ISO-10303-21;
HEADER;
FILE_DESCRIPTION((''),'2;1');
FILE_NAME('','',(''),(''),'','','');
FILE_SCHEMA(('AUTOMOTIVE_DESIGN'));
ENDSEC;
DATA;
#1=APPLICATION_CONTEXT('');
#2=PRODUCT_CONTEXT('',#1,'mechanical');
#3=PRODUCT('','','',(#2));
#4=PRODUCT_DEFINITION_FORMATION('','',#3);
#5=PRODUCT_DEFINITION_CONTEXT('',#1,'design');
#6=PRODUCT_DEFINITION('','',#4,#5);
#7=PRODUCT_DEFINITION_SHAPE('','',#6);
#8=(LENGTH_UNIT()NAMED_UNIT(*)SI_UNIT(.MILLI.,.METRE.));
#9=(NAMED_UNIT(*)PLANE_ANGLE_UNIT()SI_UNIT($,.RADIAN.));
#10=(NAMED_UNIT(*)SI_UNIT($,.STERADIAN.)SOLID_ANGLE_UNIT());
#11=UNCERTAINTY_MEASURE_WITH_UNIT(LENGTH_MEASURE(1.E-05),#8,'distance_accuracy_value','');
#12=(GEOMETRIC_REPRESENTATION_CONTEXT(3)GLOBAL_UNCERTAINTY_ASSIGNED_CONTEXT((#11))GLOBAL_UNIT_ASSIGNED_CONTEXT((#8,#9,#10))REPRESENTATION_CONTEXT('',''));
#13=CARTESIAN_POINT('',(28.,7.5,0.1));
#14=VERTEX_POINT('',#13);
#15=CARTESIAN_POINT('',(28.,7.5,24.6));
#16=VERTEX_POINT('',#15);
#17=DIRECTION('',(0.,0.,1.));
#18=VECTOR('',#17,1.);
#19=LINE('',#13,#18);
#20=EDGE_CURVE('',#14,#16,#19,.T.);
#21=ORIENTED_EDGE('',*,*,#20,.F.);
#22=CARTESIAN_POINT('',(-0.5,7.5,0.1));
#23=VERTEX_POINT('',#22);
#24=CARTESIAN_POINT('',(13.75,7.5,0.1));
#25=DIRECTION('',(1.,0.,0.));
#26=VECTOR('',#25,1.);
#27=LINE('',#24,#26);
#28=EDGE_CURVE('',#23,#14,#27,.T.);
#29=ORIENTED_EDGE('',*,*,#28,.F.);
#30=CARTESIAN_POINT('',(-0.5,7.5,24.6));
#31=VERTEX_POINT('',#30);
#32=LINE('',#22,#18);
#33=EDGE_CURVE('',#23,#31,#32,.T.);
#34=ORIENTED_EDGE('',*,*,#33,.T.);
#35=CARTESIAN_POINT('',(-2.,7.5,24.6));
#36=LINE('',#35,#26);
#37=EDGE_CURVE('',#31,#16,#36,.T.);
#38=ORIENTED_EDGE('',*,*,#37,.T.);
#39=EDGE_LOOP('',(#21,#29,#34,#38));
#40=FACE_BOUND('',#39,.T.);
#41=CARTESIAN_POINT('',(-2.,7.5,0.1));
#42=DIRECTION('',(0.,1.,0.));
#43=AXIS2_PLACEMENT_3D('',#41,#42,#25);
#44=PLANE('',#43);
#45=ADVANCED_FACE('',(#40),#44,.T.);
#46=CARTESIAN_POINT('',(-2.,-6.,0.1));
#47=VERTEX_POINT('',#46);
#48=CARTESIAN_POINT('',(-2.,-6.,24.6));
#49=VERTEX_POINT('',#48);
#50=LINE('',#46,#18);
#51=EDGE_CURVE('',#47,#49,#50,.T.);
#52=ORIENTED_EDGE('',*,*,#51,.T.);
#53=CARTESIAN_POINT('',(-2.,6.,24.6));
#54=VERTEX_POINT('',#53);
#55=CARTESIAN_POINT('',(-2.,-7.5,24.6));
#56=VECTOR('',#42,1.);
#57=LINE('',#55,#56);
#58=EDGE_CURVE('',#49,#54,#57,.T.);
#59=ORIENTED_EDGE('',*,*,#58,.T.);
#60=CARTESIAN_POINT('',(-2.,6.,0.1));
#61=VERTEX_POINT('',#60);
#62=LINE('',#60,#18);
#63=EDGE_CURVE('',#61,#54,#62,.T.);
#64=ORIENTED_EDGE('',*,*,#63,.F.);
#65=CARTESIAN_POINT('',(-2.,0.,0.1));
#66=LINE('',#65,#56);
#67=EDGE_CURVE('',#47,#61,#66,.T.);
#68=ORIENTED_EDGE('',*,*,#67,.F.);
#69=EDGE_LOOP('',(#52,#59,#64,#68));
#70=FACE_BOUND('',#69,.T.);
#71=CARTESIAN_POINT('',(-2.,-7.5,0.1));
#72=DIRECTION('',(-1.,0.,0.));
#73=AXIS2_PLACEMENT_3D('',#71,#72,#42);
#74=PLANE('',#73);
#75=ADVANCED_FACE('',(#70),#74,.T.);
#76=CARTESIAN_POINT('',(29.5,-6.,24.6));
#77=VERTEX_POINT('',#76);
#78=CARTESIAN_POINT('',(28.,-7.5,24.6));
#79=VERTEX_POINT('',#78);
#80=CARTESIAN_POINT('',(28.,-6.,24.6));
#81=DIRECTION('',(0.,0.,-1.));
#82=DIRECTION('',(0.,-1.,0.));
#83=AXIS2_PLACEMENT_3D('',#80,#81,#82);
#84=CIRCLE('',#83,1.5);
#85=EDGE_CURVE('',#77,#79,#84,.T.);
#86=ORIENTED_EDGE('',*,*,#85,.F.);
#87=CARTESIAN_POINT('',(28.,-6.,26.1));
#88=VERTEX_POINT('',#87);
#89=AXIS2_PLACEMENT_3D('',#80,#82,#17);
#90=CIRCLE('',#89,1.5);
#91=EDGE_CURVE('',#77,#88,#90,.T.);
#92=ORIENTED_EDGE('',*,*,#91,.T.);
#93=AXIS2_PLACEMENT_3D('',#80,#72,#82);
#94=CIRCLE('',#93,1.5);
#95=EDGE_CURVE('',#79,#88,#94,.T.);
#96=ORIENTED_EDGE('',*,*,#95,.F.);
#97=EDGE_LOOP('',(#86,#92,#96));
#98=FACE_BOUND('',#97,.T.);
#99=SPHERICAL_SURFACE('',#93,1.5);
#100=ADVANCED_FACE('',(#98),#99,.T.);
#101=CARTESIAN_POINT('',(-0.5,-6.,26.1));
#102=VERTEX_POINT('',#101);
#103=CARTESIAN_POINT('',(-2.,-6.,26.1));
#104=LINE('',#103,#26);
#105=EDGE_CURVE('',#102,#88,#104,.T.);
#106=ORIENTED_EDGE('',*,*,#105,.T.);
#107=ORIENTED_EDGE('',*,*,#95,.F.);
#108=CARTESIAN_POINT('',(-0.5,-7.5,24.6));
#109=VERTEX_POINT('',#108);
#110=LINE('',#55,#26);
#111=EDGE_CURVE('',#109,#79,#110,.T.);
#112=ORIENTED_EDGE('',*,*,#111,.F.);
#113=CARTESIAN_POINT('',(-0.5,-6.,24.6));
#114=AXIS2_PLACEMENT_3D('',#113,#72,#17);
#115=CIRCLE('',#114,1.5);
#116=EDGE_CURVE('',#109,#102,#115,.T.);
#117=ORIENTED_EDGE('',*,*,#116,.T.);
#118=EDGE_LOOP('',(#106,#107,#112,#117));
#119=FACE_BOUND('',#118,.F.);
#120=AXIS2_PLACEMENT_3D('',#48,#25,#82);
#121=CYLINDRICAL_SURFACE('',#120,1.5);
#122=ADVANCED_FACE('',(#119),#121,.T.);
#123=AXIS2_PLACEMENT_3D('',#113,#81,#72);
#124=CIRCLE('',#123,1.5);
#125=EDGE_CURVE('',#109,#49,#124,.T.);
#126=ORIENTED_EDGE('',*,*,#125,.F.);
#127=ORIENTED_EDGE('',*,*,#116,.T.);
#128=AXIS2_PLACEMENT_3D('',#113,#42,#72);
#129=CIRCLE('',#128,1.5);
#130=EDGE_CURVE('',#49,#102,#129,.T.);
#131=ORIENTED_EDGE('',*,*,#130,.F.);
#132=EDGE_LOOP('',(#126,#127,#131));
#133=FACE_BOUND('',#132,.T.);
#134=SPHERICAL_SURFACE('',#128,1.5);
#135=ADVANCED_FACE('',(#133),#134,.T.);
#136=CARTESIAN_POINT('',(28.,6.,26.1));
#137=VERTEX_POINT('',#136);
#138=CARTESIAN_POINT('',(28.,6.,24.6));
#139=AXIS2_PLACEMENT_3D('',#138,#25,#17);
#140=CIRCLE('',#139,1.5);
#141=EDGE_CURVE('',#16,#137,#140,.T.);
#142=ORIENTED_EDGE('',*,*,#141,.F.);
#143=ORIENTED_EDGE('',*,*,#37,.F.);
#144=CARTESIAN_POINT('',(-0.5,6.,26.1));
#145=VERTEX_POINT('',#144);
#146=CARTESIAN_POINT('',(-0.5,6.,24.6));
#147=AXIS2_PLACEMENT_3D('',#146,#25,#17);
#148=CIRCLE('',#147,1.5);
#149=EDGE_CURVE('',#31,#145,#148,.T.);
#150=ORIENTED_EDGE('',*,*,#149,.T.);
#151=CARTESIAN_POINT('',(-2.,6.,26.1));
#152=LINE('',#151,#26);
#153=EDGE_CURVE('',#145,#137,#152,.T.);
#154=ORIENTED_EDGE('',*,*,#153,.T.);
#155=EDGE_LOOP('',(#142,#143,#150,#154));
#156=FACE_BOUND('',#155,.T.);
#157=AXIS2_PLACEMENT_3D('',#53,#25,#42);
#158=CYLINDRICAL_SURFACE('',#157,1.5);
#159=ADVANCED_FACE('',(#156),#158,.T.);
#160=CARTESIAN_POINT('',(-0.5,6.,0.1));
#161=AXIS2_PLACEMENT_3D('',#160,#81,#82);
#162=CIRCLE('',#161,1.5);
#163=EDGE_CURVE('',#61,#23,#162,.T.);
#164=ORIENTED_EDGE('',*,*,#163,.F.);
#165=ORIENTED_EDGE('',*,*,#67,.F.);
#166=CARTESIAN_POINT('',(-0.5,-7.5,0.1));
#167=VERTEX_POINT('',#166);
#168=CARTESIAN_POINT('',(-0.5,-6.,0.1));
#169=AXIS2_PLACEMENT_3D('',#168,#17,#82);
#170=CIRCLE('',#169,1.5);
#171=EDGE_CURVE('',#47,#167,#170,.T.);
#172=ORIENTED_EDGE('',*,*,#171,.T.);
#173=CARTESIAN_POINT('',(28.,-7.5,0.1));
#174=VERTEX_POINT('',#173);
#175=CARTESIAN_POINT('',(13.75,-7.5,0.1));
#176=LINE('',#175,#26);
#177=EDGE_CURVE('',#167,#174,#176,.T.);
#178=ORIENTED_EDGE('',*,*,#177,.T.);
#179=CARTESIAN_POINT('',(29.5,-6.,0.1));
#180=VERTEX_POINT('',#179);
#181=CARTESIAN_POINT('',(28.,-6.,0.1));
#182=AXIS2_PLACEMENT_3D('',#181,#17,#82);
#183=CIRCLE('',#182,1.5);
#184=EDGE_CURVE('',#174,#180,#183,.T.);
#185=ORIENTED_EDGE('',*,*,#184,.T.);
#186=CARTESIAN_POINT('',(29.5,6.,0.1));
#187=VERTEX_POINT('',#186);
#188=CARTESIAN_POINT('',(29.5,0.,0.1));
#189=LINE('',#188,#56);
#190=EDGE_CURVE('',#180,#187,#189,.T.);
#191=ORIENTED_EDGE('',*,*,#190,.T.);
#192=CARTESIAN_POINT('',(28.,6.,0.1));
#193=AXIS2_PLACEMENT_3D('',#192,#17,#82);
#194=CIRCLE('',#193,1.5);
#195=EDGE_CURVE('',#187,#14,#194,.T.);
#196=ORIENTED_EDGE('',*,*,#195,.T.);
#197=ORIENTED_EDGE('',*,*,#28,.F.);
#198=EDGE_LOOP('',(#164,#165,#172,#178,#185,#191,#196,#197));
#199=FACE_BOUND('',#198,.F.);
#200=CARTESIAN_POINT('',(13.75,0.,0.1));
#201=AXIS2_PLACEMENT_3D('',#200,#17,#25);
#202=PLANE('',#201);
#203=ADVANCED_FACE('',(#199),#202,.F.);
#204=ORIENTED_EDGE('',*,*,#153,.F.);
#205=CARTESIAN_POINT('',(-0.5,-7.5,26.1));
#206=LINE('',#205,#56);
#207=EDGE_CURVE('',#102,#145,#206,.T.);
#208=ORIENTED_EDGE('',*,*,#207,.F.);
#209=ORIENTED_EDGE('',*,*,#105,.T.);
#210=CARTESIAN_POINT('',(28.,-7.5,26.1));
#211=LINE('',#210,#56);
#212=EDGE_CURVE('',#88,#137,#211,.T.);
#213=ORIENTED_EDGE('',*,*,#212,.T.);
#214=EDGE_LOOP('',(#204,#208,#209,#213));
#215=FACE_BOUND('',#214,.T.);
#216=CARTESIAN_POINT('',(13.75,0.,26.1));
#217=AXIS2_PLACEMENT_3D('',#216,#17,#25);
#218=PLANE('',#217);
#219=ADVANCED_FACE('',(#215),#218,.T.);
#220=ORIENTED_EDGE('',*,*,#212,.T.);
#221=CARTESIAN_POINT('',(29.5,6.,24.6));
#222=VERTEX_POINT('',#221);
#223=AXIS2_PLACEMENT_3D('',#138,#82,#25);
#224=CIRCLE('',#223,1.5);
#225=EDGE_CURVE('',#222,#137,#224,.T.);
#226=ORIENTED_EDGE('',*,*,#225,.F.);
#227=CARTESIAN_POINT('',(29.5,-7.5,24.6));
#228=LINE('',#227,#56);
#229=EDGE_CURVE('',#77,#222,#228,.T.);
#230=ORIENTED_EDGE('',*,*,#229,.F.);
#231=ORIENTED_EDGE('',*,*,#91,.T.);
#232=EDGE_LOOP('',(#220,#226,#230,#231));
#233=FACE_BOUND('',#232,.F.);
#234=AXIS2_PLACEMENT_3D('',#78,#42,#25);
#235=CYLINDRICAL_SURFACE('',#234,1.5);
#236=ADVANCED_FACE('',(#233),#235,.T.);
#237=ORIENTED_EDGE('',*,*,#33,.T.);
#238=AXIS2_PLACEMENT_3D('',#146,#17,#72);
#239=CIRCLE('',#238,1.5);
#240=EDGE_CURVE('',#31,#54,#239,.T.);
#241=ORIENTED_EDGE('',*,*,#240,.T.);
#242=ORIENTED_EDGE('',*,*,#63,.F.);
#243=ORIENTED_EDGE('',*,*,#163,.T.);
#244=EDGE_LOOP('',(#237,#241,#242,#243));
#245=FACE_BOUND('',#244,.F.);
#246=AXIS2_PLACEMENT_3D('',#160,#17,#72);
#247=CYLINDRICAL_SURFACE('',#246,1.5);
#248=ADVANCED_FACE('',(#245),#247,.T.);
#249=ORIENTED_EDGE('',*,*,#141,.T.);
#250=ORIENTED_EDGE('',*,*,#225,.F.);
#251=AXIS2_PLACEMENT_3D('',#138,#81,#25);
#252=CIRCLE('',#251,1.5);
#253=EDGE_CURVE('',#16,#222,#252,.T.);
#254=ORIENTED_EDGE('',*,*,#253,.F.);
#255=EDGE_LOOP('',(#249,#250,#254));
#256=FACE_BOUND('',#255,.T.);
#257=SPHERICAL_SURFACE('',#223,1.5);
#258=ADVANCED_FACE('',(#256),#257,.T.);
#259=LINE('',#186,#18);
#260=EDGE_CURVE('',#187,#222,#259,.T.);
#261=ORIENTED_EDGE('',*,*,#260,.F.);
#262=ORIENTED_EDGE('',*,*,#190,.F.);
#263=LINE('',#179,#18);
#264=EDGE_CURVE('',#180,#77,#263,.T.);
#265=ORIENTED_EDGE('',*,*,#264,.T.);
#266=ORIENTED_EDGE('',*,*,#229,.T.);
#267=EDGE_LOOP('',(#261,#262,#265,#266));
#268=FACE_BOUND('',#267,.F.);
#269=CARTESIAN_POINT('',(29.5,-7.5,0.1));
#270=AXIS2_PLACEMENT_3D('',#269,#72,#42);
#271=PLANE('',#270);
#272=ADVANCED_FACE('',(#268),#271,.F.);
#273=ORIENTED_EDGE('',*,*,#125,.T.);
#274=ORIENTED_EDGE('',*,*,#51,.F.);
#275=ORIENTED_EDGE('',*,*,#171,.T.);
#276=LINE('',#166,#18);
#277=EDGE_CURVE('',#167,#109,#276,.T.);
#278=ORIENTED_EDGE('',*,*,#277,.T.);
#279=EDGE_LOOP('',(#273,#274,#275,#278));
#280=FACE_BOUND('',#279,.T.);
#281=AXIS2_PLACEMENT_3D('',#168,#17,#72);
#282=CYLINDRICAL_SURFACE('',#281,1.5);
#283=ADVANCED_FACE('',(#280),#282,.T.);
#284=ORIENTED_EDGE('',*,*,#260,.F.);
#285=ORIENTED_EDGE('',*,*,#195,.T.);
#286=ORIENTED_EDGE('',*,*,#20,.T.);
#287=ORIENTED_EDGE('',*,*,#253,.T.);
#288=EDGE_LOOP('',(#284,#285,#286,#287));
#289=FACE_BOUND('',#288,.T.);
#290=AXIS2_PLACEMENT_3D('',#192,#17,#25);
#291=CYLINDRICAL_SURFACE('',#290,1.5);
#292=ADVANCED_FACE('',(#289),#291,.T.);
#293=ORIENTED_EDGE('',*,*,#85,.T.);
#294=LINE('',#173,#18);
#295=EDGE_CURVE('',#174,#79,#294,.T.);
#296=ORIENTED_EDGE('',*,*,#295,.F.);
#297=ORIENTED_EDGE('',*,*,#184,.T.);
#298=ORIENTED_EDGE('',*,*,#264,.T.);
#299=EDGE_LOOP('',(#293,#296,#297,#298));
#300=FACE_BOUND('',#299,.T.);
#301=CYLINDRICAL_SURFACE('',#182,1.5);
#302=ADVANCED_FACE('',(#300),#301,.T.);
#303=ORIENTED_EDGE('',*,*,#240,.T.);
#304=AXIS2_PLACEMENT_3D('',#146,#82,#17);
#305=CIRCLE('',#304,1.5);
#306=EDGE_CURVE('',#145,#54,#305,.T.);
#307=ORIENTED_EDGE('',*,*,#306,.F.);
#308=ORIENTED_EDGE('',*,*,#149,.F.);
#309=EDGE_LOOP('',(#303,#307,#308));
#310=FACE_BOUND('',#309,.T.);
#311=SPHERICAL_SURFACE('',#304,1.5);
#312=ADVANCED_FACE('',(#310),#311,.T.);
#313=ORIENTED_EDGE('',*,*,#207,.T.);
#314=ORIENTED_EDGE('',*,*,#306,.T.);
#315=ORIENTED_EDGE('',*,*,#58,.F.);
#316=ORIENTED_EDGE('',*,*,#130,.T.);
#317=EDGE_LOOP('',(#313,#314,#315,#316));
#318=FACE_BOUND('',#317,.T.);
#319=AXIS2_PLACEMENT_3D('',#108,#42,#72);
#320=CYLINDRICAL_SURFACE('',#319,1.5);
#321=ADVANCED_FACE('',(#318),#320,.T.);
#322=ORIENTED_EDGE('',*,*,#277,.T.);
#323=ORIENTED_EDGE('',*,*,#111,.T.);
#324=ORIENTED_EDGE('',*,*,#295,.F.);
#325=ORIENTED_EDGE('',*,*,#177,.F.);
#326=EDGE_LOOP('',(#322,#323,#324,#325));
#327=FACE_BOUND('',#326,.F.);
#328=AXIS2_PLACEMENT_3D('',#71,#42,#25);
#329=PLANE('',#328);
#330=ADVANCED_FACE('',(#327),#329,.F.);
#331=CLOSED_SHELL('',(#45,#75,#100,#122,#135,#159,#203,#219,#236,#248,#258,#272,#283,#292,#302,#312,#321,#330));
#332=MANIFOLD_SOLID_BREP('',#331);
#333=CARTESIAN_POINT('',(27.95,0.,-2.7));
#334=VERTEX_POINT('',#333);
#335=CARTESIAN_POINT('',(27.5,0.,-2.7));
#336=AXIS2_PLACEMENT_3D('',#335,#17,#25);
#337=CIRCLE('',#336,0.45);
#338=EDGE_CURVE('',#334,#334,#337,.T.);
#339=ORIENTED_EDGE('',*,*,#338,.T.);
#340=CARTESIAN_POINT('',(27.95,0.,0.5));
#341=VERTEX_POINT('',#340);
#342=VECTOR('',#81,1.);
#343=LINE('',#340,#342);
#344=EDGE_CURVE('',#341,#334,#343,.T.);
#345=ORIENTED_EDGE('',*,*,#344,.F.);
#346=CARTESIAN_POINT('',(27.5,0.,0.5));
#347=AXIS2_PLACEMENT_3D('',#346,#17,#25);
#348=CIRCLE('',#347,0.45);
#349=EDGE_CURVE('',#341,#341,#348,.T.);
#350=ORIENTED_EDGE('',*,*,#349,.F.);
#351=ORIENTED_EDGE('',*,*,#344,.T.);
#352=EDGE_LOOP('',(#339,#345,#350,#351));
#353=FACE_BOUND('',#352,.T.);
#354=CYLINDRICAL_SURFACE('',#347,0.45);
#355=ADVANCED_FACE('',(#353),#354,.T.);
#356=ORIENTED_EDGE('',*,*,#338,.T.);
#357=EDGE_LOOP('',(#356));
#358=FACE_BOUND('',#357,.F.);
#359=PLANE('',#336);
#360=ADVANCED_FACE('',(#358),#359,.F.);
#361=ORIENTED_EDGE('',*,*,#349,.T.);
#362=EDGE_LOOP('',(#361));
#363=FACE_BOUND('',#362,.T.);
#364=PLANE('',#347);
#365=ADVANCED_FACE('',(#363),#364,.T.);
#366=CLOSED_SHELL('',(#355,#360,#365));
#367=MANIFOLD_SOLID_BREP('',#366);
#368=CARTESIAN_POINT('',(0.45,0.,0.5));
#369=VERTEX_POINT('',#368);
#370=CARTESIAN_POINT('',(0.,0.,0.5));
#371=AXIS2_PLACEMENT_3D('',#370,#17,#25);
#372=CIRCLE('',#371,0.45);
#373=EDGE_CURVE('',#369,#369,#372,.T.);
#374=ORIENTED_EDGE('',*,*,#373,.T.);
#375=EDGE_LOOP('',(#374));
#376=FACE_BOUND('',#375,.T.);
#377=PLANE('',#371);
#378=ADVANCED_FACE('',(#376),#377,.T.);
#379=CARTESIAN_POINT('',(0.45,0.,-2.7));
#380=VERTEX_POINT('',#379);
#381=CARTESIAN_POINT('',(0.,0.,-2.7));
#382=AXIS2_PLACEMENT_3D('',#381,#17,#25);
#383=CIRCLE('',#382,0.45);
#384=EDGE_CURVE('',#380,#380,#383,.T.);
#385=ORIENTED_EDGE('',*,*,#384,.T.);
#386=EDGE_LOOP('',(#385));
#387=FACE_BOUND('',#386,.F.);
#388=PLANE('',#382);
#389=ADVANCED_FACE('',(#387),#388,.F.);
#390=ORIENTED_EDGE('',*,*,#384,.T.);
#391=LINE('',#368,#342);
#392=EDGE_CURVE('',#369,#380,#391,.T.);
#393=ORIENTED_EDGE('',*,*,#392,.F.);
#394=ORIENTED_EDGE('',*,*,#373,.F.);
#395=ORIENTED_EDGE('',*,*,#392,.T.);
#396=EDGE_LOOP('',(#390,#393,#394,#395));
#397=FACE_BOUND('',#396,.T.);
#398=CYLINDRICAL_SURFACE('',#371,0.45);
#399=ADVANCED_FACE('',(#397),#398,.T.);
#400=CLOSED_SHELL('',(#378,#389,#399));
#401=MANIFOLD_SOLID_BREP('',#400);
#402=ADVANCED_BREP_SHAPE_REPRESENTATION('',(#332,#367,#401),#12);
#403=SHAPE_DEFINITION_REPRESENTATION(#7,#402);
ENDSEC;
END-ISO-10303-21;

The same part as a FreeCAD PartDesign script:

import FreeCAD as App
import Part
import Sketcher

V = App.Vector
Q = App.Units.Quantity


def edges_at(feature, points):
    """Names of the edges that pass closest to the given points."""
    edges = feature.Shape.Edges
    near = lambda p: min(range(len(edges)), key=lambda i: edges[i].distToShape(Part.Vertex(*p))[0])
    return sorted({f"Edge{near(p) + 1}" for p in points})

doc = App.newDocument("Part")
body = doc.addObject("PartDesign::Body", "Body")

sketch1 = body.newObject("Sketcher::SketchObject", "Sketch")
sketch1.AttachmentSupport = (doc.getObject("XY_Plane"), [""])
sketch1.MapMode = "FlatFace"
sketch1.AttachmentOffset = App.Placement(V(0, 0, 0.1), App.Rotation())
sketch1.addGeometry([
    Part.LineSegment(V(-2, 7.5, 0), V(-2, -7.5, 0)),
    Part.LineSegment(V(-2, -7.5, 0), V(29.5, -7.5, 0)),
    Part.LineSegment(V(29.5, -7.5, 0), V(29.5, 7.5, 0)),
    Part.LineSegment(V(29.5, 7.5, 0), V(-2, 7.5, 0)),
], False)
sketch1.addConstraint([
    Sketcher.Constraint("Coincident", 0, 2, 1, 1),
    Sketcher.Constraint("Coincident", 1, 2, 2, 1),
    Sketcher.Constraint("Coincident", 2, 2, 3, 1),
    Sketcher.Constraint("Coincident", 3, 2, 0, 1),
    Sketcher.Constraint("Vertical", 0),
    Sketcher.Constraint("Horizontal", 1),
    Sketcher.Constraint("Vertical", 2),
    Sketcher.Constraint("Horizontal", 3),
    Sketcher.Constraint("DistanceY", 0, 2, 0, 1, Q("15 mm")),
    Sketcher.Constraint("DistanceX", 1, 1, 1, 2, Q("31.5 mm")),
    Sketcher.Constraint("DistanceX", 0, 2, -1, 1, Q("2 mm")),
    Sketcher.Constraint("DistanceY", 0, 2, -1, 1, Q("7.5 mm")),
])
pad1 = body.newObject("PartDesign::Pad", "Pad")
pad1.Profile = sketch1
pad1.Length = 26
doc.recompute()

fillet = body.newObject("PartDesign::Fillet", "Fillet")
fillet.Base = (pad1, edges_at(pad1, [
    (-2, 0, 26.1),
    (-2, -7.5, 13.1),
    (13.75, -7.5, 26.1),
    (29.5, -7.5, 13.1),
    (29.5, 0, 26.1),
    (29.5, 7.5, 13.1),
    (13.75, 7.5, 26.1),
    (-2, 7.5, 13.1),
]))
fillet.Radius = 1.5
body2 = doc.addObject("PartDesign::Body", "Body001")
body2.AllowCompound = True

sketch2 = body2.newObject("Sketcher::SketchObject", "Sketch001")
sketch2.AttachmentSupport = (doc.getObject("XY_Plane001"), [""])
sketch2.MapMode = "FlatFace"
sketch2.AttachmentOffset = App.Placement(V(0, 0, 0.5), App.Rotation())
sketch2.addGeometry([
    Part.Circle(V(0, 0, 0), V(0, 0, 1), 0.45),
    Part.Circle(V(27.5, 0, 0), V(0, 0, 1), 0.45),
], False)
sketch2.addConstraint([
    Sketcher.Constraint("Coincident", 0, 3, -1, 1),
    Sketcher.Constraint("Equal", 0, 1),
    Sketcher.Constraint("PointOnObject", 1, 3, -1),
    Sketcher.Constraint("Diameter", 0, Q("0.9 mm")),
    Sketcher.Constraint("DistanceX", -1, 1, 1, 3, Q("27.5 mm")),
])
pad2 = body2.newObject("PartDesign::Pad", "Pad001")
pad2.Profile = sketch2
pad2.Length = 3.2
pad2.Reversed = True

doc.recompute()
